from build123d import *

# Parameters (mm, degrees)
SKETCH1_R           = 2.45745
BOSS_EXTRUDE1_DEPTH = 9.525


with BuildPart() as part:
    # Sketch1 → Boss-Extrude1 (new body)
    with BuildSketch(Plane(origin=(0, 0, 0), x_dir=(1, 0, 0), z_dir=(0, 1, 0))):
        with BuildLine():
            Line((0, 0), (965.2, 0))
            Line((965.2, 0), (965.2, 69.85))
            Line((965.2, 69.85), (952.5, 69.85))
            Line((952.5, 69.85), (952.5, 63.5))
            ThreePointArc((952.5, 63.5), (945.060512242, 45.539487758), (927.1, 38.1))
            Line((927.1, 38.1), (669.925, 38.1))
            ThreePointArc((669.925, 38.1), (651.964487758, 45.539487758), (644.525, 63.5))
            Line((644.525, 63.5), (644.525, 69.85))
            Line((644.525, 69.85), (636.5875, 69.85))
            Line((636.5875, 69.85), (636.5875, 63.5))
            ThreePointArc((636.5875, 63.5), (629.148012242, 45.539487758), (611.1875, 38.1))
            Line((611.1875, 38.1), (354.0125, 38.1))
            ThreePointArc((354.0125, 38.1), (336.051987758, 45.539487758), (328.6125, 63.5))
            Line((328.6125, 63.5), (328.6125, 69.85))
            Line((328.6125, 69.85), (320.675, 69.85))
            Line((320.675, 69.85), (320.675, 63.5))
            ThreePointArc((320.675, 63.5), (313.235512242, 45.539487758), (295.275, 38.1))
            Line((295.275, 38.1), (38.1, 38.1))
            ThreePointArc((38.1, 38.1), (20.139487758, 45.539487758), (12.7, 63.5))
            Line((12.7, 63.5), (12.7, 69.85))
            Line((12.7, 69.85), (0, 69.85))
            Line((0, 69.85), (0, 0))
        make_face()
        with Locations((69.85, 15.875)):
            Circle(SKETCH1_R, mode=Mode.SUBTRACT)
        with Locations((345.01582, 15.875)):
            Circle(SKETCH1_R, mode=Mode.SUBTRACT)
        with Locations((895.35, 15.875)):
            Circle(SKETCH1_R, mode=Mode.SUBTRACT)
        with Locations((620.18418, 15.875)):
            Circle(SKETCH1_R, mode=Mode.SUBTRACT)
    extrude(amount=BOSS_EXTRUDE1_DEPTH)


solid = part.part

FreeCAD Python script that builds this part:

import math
import FreeCAD as App
import Part
import Sketcher

V = App.Vector
Q = App.Units.Quantity

doc = App.newDocument("Part")
body = doc.addObject("PartDesign::Body", "Body")

# Sketch on XZ plane
sketch1 = body.newObject("Sketcher::SketchObject", "Sketch")
sketch1.AttachmentSupport = (doc.getObject("XZ_Plane"), [""])
sketch1.MapMode = "FlatFace"
sketch1.addGeometry(Part.LineSegment(V(0, 0, 0), V(965.2, 0, 0)), False)
sketch1.addGeometry(Part.LineSegment(V(965.2, 0, 0), V(965.2, -69.85, 0)), False)
sketch1.addGeometry(Part.LineSegment(V(965.2, -69.85, 0), V(952.5, -69.85, 0)), False)
sketch1.addGeometry(Part.LineSegment(V(952.5, -69.85, 0), V(952.5, -63.5, 0)), False)
sketch1.addGeometry(Part.ArcOfCircle(Part.Circle(V(927.1, -63.5, 0), V(0, 0, 1), 25.4), math.radians(0), math.radians(90)), False)
sketch1.addGeometry(Part.LineSegment(V(927.1, -38.1, 0), V(669.925, -38.1, 0)), False)
sketch1.addGeometry(Part.ArcOfCircle(Part.Circle(V(669.925, -63.5, 0), V(0, 0, 1), 25.4), math.radians(90), math.radians(180)), False)
sketch1.addGeometry(Part.LineSegment(V(644.525, -63.5, 0), V(644.525, -69.85, 0)), False)
sketch1.addGeometry(Part.LineSegment(V(644.525, -69.85, 0), V(636.5875, -69.85, 0)), False)
sketch1.addGeometry(Part.LineSegment(V(636.5875, -69.85, 0), V(636.5875, -63.5, 0)), False)
sketch1.addGeometry(Part.ArcOfCircle(Part.Circle(V(611.1875, -63.5, 0), V(0, 0, 1), 25.4), math.radians(0), math.radians(90)), False)
sketch1.addGeometry(Part.LineSegment(V(611.1875, -38.1, 0), V(354.0125, -38.1, 0)), False)
sketch1.addGeometry(Part.ArcOfCircle(Part.Circle(V(354.0125, -63.5, 0), V(0, 0, 1), 25.4), math.radians(90), math.radians(180)), False)
sketch1.addGeometry(Part.LineSegment(V(328.6125, -63.5, 0), V(328.6125, -69.85, 0)), False)
sketch1.addGeometry(Part.LineSegment(V(328.6125, -69.85, 0), V(320.675, -69.85, 0)), False)
sketch1.addGeometry(Part.LineSegment(V(320.675, -69.85, 0), V(320.675, -63.5, 0)), False)
sketch1.addGeometry(Part.ArcOfCircle(Part.Circle(V(295.275, -63.5, 0), V(0, 0, 1), 25.4), math.radians(0), math.radians(90)), False)
sketch1.addGeometry(Part.LineSegment(V(295.275, -38.1, 0), V(38.1, -38.1, 0)), False)
sketch1.addGeometry(Part.ArcOfCircle(Part.Circle(V(38.1, -63.5, 0), V(0, 0, 1), 25.4), math.radians(90), math.radians(180)), False)
sketch1.addGeometry(Part.LineSegment(V(12.7, -63.5, 0), V(12.7, -69.85, 0)), False)
sketch1.addGeometry(Part.LineSegment(V(12.7, -69.85, 0), V(0, -69.85, 0)), False)
sketch1.addGeometry(Part.LineSegment(V(0, -69.85, 0), V(0, 0, 0)), False)
sketch1.addGeometry(Part.Circle(V(69.85, -15.875, 0), V(0, 0, 1), 2.45745), False)
sketch1.addGeometry(Part.Circle(V(345.01582, -15.875, 0), V(0, 0, 1), 2.45745), False)
sketch1.addGeometry(Part.Circle(V(620.18418, -15.875, 0), V(0, 0, 1), 2.45745), False)
sketch1.addGeometry(Part.Circle(V(895.35, -15.875, 0), V(0, 0, 1), 2.45745), False)
sketch1.addConstraint(Sketcher.Constraint("Coincident", 0, 2, 1, 1))
sketch1.addConstraint(Sketcher.Constraint("Coincident", 1, 2, 2, 1))
sketch1.addConstraint(Sketcher.Constraint("Coincident", 2, 2, 3, 1))
sketch1.addConstraint(Sketcher.Constraint("Tangent", 3, 2, 4, 1))
sketch1.addConstraint(Sketcher.Constraint("Tangent", 4, 2, 5, 1))
sketch1.addConstraint(Sketcher.Constraint("Tangent", 5, 2, 6, 1))
sketch1.addConstraint(Sketcher.Constraint("Tangent", 6, 2, 7, 1))
sketch1.addConstraint(Sketcher.Constraint("Coincident", 7, 2, 8, 1))
sketch1.addConstraint(Sketcher.Constraint("Coincident", 8, 2, 9, 1))
sketch1.addConstraint(Sketcher.Constraint("Tangent", 9, 2, 10, 1))
sketch1.addConstraint(Sketcher.Constraint("Tangent", 10, 2, 11, 1))
sketch1.addConstraint(Sketcher.Constraint("Tangent", 11, 2, 12, 1))
sketch1.addConstraint(Sketcher.Constraint("Tangent", 12, 2, 13, 1))
sketch1.addConstraint(Sketcher.Constraint("Coincident", 13, 2, 14, 1))
sketch1.addConstraint(Sketcher.Constraint("Coincident", 14, 2, 15, 1))
sketch1.addConstraint(Sketcher.Constraint("Tangent", 15, 2, 16, 1))
sketch1.addConstraint(Sketcher.Constraint("Tangent", 16, 2, 17, 1))
sketch1.addConstraint(Sketcher.Constraint("Tangent", 17, 2, 18, 1))
sketch1.addConstraint(Sketcher.Constraint("Tangent", 18, 2, 19, 1))
sketch1.addConstraint(Sketcher.Constraint("Coincident", 19, 2, 20, 1))
sketch1.addConstraint(Sketcher.Constraint("Coincident", 20, 2, 21, 1))
sketch1.addConstraint(Sketcher.Constraint("Coincident", 21, 2, 0, 1))
sketch1.addConstraint(Sketcher.Constraint("Horizontal", 0))
sketch1.addConstraint(Sketcher.Constraint("Vertical", 1))
sketch1.addConstraint(Sketcher.Constraint("Horizontal", 2))
sketch1.addConstraint(Sketcher.Constraint("Vertical", 3))
sketch1.addConstraint(Sketcher.Constraint("Horizontal", 5))
sketch1.addConstraint(Sketcher.Constraint("Vertical", 7))
sketch1.addConstraint(Sketcher.Constraint("Horizontal", 8))
sketch1.addConstraint(Sketcher.Constraint("Vertical", 9))
sketch1.addConstraint(Sketcher.Constraint("Horizontal", 11))
sketch1.addConstraint(Sketcher.Constraint("Vertical", 13))
sketch1.addConstraint(Sketcher.Constraint("Horizontal", 14))
sketch1.addConstraint(Sketcher.Constraint("Vertical", 15))
sketch1.addConstraint(Sketcher.Constraint("Horizontal", 17))
sketch1.addConstraint(Sketcher.Constraint("Vertical", 19))
sketch1.addConstraint(Sketcher.Constraint("Horizontal", 20))
sketch1.addConstraint(Sketcher.Constraint("Vertical", 21))
sketch1.addConstraint(Sketcher.Constraint("Coincident", 21, 2, -1, 1))
sketch1.addConstraint(Sketcher.Constraint("Equal", 4, 6))
sketch1.addConstraint(Sketcher.Constraint("Equal", 6, 10))
sketch1.addConstraint(Sketcher.Constraint("Equal", 10, 12))
sketch1.addConstraint(Sketcher.Constraint("Equal", 12, 16))
sketch1.addConstraint(Sketcher.Constraint("Equal", 16, 18))
sketch1.addConstraint(Sketcher.Constraint("Equal", 22, 23))
sketch1.addConstraint(Sketcher.Constraint("Equal", 23, 24))
sketch1.addConstraint(Sketcher.Constraint("Equal", 24, 25))
sketch1.addConstraint(Sketcher.Constraint("Horizontal", 6, 3, 10, 3))
sketch1.addConstraint(Sketcher.Constraint("Horizontal", 12, 3, 16, 3))
sketch1.addConstraint(Sketcher.Constraint("Horizontal", 22, 3, 23, 3))
sketch1.addConstraint(Sketcher.Constraint("Horizontal", 23, 3, 24, 3))
sketch1.addConstraint(Sketcher.Constraint("Horizontal", 24, 3, 25, 3))
sketch1.addConstraint(Sketcher.Constraint("Horizontal", 2, 2, 7, 2))
sketch1.addConstraint(Sketcher.Constraint("Horizontal", 8, 2, 13, 2))
sketch1.addConstraint(Sketcher.Constraint("Horizontal", 14, 2, 19, 2))
sketch1.addConstraint(Sketcher.Constraint("Equal", 5, 11))
sketch1.addConstraint(Sketcher.Constraint("Equal", 8, 14))
sketch1.addConstraint(Sketcher.Constraint("Equal", 11, 17))
sketch1.addConstraint(Sketcher.Constraint("Equal", 2, 20))
sketch1.addConstraint(Sketcher.Constraint("Radius", 4, Q("1 in")))
sketch1.addConstraint(Sketcher.Constraint("DistanceX", 0, 1, 0, 2, Q("38 in")))
sketch1.addConstraint(Sketcher.Constraint("DistanceX", 2, 2, 2, 1, Q("0.5 in")))
sketch1.addConstraint(Sketcher.Constraint("Diameter", 22, Q("0.1935 in")))
sketch1.addConstraint(Sketcher.Constraint("DistanceY", 1, 2, 1, 1, Q("2.75 in")))
sketch1.addConstraint(Sketcher.Constraint("DistanceY", 3, 1, 3, 2, Q("0.25 in")))
sketch1.addConstraint(Sketcher.Constraint("DistanceX", 5, 2, 5, 1, Q("10.125 in")))
sketch1.addConstraint(Sketcher.Constraint("DistanceX", -1, 1, 22, 3, Q("2.75 in")))
sketch1.addConstraint(Sketcher.Constraint("DistanceX", -1, 1, 25, 3, Q("35.25 in")))
sketch1.addConstraint(Sketcher.Constraint("DistanceY", 22, 3, -1, 1, Q("0.625 in")))
sketch1.addConstraint(Sketcher.Constraint("DistanceX", -1, 1, 23, 3, Q("13.5833 in")))
sketch1.addConstraint(Sketcher.Constraint("DistanceX", -1, 1, 24, 3, Q("24.4167 in")))
pad1 = body.newObject("PartDesign::Pad", "Pad")
pad1.Profile = sketch1
pad1.Length = Q("0.375 in")
pad1.Reversed = True

doc.recompute()
